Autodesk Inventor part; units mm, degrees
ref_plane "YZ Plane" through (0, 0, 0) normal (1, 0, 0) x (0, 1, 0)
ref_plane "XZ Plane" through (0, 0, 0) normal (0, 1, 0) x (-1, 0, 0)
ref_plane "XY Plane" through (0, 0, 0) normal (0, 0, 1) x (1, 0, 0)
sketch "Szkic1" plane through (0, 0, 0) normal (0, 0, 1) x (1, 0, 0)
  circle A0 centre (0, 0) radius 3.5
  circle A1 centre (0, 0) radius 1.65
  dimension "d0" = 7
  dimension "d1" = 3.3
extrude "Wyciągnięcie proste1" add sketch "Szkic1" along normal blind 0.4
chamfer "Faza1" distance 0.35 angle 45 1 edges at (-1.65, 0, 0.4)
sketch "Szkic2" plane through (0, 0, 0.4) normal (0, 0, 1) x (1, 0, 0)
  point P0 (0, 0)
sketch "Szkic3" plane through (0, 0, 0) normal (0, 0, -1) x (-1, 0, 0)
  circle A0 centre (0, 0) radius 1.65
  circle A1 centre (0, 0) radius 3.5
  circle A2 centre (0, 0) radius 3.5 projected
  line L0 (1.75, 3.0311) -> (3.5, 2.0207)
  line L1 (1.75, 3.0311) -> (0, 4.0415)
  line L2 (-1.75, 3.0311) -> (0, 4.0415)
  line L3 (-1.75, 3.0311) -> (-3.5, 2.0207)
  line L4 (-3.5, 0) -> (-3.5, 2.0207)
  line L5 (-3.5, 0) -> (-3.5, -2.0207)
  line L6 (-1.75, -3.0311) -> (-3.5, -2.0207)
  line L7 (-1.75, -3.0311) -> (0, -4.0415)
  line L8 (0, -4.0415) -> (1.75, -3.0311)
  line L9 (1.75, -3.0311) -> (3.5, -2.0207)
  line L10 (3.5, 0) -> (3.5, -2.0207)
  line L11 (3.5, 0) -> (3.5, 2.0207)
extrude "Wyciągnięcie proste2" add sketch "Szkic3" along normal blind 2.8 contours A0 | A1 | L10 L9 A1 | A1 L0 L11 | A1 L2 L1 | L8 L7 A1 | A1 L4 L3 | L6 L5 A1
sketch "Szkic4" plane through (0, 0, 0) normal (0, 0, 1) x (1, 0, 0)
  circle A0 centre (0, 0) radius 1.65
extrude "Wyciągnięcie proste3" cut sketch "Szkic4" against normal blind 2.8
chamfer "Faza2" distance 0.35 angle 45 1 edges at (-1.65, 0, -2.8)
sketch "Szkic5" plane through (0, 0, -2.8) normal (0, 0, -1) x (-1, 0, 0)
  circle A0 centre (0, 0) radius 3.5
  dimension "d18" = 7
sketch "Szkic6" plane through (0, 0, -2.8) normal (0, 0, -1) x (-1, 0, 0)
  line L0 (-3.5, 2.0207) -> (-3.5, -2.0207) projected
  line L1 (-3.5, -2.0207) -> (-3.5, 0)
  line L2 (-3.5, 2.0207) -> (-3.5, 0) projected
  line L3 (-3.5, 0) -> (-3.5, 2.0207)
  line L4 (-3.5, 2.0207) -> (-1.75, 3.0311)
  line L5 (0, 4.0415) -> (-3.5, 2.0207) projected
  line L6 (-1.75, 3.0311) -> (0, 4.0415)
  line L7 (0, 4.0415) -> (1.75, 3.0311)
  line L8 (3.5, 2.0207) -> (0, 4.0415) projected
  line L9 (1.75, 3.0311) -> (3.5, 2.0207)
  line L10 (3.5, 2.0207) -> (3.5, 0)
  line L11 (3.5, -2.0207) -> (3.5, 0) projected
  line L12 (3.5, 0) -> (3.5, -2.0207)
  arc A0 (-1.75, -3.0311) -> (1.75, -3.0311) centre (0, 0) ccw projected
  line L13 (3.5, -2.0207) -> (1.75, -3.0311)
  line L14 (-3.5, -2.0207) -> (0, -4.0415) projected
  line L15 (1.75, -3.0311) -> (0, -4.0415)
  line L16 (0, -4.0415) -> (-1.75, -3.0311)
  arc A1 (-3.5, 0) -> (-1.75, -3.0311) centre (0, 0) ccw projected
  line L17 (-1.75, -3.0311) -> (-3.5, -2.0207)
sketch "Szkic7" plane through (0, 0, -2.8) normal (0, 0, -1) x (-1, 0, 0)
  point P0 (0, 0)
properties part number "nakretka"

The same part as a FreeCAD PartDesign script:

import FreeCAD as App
import Part
import Sketcher
Q = App.Units.Quantity


def edges_at(feature, points):
    """Names of the edges that pass closest to the given points."""
    edges = feature.Shape.Edges
    near = lambda p: min(range(len(edges)), key=lambda i: edges[i].distToShape(Part.Vertex(*p))[0])
    return sorted({f"Edge{near(p) + 1}" for p in points})

doc = App.newDocument("Part")
body = doc.addObject("PartDesign::Body", "Body")

sketch1 = body.newObject("Sketcher::SketchObject", "Sketch")
sketch1.AttachmentSupport = (doc.getObject("XY_Plane"), [""])
sketch1.MapMode = "FlatFace"
sketch1.addGeometry([
    Part.Circle(App.Vector(0, 0, 0), App.Vector(0, 0, 1), 3.5),
    Part.Circle(App.Vector(0, 0, 0), App.Vector(0, 0, 1), 1.6),
], False)
sketch1.addConstraint([
    Sketcher.Constraint("Coincident", 0, 3, -1, 1),
    Sketcher.Constraint("Coincident", 1, 3, -1, 1),
    Sketcher.Constraint("Diameter", 0, 7.0),
    Sketcher.Constraint("Diameter", 1, 3.3),
])
pad1 = body.newObject("PartDesign::Pad", "Pad")
pad1.Profile = sketch1
pad1.Length = 0.4
doc.recompute()

chamfer = body.newObject("PartDesign::Chamfer", "Chamfer")
chamfer.Base = (pad1, edges_at(pad1, [(-1.65, 0, 0.4)]))
chamfer.Size = 0.35

sketch2 = body.newObject("Sketcher::SketchObject", "Sketch001")
sketch2.AttachmentSupport = (doc.getObject("XY_Plane"), [""])
sketch2.MapMode = "FlatFace"
sketch2.addGeometry([
    Part.LineSegment(App.Vector(-3.5, -2, 0), App.Vector(-3.5, 2, 0)),
    Part.LineSegment(App.Vector(-3.5, 2, 0), App.Vector(0, 4, 0)),
    Part.LineSegment(App.Vector(0, 4, 0), App.Vector(3.5, 2, 0)),
    Part.LineSegment(App.Vector(3.5, 2, 0), App.Vector(3.5, -2, 0)),
    Part.LineSegment(App.Vector(3.5, -2, 0), App.Vector(0, -4, 0)),
    Part.LineSegment(App.Vector(0, -4, 0), App.Vector(-3.5, -2, 0)),
], False)
sketch2.addConstraint([
    Sketcher.Constraint("Coincident", 0, 2, 1, 1),
    Sketcher.Constraint("Coincident", 1, 2, 2, 1),
    Sketcher.Constraint("Coincident", 2, 2, 3, 1),
    Sketcher.Constraint("Coincident", 3, 2, 4, 1),
    Sketcher.Constraint("Coincident", 4, 2, 5, 1),
    Sketcher.Constraint("Coincident", 5, 2, 0, 1),
    Sketcher.Constraint("Vertical", 0),
    Sketcher.Constraint("Vertical", 3),
    Sketcher.Constraint("Symmetric", 0, 2, 3, 2, -1, 1),
    Sketcher.Constraint("Symmetric", 1, 2, 4, 2, -1, 1),
    Sketcher.Constraint("PointOnObject", 1, 2, -2),
    Sketcher.Constraint("Parallel", 2, 5),
    Sketcher.Constraint("Horizontal", 0, 2, 2, 2),
    Sketcher.Constraint("Angle", 1, Q("30.001 deg")),
    Sketcher.Constraint("DistanceX", 0, 2, 2, 2, 7.0),
    Sketcher.Constraint("DistanceY", 0, 1, 0, 2, 4.0414),
])
pad2 = body.newObject("PartDesign::Pad", "Pad001")
pad2.Profile = sketch2
pad2.Length = 2.8
pad2.Reversed = True

sketch3 = body.newObject("Sketcher::SketchObject", "Sketch002")
sketch3.AttachmentSupport = (doc.getObject("XY_Plane"), [""])
sketch3.MapMode = "FlatFace"
sketch3.addGeometry(Part.Circle(App.Vector(0, 0, 0), App.Vector(0, 0, 1), 1.6), False)
sketch3.addConstraint([
    Sketcher.Constraint("Coincident", 0, 3, -1, 1),
    Sketcher.Constraint("Diameter", 0, 3.3),
])
pocket1 = body.newObject("PartDesign::Pocket", "Pocket")
pocket1.Profile = sketch3
pocket1.Length = 2.8
doc.recompute()

chamfer2 = body.newObject("PartDesign::Chamfer", "Chamfer001")
chamfer2.Base = (pocket1, edges_at(pocket1, [(-1.65, 0, -2.8)]))
chamfer2.Size = 0.35

doc.recompute()
